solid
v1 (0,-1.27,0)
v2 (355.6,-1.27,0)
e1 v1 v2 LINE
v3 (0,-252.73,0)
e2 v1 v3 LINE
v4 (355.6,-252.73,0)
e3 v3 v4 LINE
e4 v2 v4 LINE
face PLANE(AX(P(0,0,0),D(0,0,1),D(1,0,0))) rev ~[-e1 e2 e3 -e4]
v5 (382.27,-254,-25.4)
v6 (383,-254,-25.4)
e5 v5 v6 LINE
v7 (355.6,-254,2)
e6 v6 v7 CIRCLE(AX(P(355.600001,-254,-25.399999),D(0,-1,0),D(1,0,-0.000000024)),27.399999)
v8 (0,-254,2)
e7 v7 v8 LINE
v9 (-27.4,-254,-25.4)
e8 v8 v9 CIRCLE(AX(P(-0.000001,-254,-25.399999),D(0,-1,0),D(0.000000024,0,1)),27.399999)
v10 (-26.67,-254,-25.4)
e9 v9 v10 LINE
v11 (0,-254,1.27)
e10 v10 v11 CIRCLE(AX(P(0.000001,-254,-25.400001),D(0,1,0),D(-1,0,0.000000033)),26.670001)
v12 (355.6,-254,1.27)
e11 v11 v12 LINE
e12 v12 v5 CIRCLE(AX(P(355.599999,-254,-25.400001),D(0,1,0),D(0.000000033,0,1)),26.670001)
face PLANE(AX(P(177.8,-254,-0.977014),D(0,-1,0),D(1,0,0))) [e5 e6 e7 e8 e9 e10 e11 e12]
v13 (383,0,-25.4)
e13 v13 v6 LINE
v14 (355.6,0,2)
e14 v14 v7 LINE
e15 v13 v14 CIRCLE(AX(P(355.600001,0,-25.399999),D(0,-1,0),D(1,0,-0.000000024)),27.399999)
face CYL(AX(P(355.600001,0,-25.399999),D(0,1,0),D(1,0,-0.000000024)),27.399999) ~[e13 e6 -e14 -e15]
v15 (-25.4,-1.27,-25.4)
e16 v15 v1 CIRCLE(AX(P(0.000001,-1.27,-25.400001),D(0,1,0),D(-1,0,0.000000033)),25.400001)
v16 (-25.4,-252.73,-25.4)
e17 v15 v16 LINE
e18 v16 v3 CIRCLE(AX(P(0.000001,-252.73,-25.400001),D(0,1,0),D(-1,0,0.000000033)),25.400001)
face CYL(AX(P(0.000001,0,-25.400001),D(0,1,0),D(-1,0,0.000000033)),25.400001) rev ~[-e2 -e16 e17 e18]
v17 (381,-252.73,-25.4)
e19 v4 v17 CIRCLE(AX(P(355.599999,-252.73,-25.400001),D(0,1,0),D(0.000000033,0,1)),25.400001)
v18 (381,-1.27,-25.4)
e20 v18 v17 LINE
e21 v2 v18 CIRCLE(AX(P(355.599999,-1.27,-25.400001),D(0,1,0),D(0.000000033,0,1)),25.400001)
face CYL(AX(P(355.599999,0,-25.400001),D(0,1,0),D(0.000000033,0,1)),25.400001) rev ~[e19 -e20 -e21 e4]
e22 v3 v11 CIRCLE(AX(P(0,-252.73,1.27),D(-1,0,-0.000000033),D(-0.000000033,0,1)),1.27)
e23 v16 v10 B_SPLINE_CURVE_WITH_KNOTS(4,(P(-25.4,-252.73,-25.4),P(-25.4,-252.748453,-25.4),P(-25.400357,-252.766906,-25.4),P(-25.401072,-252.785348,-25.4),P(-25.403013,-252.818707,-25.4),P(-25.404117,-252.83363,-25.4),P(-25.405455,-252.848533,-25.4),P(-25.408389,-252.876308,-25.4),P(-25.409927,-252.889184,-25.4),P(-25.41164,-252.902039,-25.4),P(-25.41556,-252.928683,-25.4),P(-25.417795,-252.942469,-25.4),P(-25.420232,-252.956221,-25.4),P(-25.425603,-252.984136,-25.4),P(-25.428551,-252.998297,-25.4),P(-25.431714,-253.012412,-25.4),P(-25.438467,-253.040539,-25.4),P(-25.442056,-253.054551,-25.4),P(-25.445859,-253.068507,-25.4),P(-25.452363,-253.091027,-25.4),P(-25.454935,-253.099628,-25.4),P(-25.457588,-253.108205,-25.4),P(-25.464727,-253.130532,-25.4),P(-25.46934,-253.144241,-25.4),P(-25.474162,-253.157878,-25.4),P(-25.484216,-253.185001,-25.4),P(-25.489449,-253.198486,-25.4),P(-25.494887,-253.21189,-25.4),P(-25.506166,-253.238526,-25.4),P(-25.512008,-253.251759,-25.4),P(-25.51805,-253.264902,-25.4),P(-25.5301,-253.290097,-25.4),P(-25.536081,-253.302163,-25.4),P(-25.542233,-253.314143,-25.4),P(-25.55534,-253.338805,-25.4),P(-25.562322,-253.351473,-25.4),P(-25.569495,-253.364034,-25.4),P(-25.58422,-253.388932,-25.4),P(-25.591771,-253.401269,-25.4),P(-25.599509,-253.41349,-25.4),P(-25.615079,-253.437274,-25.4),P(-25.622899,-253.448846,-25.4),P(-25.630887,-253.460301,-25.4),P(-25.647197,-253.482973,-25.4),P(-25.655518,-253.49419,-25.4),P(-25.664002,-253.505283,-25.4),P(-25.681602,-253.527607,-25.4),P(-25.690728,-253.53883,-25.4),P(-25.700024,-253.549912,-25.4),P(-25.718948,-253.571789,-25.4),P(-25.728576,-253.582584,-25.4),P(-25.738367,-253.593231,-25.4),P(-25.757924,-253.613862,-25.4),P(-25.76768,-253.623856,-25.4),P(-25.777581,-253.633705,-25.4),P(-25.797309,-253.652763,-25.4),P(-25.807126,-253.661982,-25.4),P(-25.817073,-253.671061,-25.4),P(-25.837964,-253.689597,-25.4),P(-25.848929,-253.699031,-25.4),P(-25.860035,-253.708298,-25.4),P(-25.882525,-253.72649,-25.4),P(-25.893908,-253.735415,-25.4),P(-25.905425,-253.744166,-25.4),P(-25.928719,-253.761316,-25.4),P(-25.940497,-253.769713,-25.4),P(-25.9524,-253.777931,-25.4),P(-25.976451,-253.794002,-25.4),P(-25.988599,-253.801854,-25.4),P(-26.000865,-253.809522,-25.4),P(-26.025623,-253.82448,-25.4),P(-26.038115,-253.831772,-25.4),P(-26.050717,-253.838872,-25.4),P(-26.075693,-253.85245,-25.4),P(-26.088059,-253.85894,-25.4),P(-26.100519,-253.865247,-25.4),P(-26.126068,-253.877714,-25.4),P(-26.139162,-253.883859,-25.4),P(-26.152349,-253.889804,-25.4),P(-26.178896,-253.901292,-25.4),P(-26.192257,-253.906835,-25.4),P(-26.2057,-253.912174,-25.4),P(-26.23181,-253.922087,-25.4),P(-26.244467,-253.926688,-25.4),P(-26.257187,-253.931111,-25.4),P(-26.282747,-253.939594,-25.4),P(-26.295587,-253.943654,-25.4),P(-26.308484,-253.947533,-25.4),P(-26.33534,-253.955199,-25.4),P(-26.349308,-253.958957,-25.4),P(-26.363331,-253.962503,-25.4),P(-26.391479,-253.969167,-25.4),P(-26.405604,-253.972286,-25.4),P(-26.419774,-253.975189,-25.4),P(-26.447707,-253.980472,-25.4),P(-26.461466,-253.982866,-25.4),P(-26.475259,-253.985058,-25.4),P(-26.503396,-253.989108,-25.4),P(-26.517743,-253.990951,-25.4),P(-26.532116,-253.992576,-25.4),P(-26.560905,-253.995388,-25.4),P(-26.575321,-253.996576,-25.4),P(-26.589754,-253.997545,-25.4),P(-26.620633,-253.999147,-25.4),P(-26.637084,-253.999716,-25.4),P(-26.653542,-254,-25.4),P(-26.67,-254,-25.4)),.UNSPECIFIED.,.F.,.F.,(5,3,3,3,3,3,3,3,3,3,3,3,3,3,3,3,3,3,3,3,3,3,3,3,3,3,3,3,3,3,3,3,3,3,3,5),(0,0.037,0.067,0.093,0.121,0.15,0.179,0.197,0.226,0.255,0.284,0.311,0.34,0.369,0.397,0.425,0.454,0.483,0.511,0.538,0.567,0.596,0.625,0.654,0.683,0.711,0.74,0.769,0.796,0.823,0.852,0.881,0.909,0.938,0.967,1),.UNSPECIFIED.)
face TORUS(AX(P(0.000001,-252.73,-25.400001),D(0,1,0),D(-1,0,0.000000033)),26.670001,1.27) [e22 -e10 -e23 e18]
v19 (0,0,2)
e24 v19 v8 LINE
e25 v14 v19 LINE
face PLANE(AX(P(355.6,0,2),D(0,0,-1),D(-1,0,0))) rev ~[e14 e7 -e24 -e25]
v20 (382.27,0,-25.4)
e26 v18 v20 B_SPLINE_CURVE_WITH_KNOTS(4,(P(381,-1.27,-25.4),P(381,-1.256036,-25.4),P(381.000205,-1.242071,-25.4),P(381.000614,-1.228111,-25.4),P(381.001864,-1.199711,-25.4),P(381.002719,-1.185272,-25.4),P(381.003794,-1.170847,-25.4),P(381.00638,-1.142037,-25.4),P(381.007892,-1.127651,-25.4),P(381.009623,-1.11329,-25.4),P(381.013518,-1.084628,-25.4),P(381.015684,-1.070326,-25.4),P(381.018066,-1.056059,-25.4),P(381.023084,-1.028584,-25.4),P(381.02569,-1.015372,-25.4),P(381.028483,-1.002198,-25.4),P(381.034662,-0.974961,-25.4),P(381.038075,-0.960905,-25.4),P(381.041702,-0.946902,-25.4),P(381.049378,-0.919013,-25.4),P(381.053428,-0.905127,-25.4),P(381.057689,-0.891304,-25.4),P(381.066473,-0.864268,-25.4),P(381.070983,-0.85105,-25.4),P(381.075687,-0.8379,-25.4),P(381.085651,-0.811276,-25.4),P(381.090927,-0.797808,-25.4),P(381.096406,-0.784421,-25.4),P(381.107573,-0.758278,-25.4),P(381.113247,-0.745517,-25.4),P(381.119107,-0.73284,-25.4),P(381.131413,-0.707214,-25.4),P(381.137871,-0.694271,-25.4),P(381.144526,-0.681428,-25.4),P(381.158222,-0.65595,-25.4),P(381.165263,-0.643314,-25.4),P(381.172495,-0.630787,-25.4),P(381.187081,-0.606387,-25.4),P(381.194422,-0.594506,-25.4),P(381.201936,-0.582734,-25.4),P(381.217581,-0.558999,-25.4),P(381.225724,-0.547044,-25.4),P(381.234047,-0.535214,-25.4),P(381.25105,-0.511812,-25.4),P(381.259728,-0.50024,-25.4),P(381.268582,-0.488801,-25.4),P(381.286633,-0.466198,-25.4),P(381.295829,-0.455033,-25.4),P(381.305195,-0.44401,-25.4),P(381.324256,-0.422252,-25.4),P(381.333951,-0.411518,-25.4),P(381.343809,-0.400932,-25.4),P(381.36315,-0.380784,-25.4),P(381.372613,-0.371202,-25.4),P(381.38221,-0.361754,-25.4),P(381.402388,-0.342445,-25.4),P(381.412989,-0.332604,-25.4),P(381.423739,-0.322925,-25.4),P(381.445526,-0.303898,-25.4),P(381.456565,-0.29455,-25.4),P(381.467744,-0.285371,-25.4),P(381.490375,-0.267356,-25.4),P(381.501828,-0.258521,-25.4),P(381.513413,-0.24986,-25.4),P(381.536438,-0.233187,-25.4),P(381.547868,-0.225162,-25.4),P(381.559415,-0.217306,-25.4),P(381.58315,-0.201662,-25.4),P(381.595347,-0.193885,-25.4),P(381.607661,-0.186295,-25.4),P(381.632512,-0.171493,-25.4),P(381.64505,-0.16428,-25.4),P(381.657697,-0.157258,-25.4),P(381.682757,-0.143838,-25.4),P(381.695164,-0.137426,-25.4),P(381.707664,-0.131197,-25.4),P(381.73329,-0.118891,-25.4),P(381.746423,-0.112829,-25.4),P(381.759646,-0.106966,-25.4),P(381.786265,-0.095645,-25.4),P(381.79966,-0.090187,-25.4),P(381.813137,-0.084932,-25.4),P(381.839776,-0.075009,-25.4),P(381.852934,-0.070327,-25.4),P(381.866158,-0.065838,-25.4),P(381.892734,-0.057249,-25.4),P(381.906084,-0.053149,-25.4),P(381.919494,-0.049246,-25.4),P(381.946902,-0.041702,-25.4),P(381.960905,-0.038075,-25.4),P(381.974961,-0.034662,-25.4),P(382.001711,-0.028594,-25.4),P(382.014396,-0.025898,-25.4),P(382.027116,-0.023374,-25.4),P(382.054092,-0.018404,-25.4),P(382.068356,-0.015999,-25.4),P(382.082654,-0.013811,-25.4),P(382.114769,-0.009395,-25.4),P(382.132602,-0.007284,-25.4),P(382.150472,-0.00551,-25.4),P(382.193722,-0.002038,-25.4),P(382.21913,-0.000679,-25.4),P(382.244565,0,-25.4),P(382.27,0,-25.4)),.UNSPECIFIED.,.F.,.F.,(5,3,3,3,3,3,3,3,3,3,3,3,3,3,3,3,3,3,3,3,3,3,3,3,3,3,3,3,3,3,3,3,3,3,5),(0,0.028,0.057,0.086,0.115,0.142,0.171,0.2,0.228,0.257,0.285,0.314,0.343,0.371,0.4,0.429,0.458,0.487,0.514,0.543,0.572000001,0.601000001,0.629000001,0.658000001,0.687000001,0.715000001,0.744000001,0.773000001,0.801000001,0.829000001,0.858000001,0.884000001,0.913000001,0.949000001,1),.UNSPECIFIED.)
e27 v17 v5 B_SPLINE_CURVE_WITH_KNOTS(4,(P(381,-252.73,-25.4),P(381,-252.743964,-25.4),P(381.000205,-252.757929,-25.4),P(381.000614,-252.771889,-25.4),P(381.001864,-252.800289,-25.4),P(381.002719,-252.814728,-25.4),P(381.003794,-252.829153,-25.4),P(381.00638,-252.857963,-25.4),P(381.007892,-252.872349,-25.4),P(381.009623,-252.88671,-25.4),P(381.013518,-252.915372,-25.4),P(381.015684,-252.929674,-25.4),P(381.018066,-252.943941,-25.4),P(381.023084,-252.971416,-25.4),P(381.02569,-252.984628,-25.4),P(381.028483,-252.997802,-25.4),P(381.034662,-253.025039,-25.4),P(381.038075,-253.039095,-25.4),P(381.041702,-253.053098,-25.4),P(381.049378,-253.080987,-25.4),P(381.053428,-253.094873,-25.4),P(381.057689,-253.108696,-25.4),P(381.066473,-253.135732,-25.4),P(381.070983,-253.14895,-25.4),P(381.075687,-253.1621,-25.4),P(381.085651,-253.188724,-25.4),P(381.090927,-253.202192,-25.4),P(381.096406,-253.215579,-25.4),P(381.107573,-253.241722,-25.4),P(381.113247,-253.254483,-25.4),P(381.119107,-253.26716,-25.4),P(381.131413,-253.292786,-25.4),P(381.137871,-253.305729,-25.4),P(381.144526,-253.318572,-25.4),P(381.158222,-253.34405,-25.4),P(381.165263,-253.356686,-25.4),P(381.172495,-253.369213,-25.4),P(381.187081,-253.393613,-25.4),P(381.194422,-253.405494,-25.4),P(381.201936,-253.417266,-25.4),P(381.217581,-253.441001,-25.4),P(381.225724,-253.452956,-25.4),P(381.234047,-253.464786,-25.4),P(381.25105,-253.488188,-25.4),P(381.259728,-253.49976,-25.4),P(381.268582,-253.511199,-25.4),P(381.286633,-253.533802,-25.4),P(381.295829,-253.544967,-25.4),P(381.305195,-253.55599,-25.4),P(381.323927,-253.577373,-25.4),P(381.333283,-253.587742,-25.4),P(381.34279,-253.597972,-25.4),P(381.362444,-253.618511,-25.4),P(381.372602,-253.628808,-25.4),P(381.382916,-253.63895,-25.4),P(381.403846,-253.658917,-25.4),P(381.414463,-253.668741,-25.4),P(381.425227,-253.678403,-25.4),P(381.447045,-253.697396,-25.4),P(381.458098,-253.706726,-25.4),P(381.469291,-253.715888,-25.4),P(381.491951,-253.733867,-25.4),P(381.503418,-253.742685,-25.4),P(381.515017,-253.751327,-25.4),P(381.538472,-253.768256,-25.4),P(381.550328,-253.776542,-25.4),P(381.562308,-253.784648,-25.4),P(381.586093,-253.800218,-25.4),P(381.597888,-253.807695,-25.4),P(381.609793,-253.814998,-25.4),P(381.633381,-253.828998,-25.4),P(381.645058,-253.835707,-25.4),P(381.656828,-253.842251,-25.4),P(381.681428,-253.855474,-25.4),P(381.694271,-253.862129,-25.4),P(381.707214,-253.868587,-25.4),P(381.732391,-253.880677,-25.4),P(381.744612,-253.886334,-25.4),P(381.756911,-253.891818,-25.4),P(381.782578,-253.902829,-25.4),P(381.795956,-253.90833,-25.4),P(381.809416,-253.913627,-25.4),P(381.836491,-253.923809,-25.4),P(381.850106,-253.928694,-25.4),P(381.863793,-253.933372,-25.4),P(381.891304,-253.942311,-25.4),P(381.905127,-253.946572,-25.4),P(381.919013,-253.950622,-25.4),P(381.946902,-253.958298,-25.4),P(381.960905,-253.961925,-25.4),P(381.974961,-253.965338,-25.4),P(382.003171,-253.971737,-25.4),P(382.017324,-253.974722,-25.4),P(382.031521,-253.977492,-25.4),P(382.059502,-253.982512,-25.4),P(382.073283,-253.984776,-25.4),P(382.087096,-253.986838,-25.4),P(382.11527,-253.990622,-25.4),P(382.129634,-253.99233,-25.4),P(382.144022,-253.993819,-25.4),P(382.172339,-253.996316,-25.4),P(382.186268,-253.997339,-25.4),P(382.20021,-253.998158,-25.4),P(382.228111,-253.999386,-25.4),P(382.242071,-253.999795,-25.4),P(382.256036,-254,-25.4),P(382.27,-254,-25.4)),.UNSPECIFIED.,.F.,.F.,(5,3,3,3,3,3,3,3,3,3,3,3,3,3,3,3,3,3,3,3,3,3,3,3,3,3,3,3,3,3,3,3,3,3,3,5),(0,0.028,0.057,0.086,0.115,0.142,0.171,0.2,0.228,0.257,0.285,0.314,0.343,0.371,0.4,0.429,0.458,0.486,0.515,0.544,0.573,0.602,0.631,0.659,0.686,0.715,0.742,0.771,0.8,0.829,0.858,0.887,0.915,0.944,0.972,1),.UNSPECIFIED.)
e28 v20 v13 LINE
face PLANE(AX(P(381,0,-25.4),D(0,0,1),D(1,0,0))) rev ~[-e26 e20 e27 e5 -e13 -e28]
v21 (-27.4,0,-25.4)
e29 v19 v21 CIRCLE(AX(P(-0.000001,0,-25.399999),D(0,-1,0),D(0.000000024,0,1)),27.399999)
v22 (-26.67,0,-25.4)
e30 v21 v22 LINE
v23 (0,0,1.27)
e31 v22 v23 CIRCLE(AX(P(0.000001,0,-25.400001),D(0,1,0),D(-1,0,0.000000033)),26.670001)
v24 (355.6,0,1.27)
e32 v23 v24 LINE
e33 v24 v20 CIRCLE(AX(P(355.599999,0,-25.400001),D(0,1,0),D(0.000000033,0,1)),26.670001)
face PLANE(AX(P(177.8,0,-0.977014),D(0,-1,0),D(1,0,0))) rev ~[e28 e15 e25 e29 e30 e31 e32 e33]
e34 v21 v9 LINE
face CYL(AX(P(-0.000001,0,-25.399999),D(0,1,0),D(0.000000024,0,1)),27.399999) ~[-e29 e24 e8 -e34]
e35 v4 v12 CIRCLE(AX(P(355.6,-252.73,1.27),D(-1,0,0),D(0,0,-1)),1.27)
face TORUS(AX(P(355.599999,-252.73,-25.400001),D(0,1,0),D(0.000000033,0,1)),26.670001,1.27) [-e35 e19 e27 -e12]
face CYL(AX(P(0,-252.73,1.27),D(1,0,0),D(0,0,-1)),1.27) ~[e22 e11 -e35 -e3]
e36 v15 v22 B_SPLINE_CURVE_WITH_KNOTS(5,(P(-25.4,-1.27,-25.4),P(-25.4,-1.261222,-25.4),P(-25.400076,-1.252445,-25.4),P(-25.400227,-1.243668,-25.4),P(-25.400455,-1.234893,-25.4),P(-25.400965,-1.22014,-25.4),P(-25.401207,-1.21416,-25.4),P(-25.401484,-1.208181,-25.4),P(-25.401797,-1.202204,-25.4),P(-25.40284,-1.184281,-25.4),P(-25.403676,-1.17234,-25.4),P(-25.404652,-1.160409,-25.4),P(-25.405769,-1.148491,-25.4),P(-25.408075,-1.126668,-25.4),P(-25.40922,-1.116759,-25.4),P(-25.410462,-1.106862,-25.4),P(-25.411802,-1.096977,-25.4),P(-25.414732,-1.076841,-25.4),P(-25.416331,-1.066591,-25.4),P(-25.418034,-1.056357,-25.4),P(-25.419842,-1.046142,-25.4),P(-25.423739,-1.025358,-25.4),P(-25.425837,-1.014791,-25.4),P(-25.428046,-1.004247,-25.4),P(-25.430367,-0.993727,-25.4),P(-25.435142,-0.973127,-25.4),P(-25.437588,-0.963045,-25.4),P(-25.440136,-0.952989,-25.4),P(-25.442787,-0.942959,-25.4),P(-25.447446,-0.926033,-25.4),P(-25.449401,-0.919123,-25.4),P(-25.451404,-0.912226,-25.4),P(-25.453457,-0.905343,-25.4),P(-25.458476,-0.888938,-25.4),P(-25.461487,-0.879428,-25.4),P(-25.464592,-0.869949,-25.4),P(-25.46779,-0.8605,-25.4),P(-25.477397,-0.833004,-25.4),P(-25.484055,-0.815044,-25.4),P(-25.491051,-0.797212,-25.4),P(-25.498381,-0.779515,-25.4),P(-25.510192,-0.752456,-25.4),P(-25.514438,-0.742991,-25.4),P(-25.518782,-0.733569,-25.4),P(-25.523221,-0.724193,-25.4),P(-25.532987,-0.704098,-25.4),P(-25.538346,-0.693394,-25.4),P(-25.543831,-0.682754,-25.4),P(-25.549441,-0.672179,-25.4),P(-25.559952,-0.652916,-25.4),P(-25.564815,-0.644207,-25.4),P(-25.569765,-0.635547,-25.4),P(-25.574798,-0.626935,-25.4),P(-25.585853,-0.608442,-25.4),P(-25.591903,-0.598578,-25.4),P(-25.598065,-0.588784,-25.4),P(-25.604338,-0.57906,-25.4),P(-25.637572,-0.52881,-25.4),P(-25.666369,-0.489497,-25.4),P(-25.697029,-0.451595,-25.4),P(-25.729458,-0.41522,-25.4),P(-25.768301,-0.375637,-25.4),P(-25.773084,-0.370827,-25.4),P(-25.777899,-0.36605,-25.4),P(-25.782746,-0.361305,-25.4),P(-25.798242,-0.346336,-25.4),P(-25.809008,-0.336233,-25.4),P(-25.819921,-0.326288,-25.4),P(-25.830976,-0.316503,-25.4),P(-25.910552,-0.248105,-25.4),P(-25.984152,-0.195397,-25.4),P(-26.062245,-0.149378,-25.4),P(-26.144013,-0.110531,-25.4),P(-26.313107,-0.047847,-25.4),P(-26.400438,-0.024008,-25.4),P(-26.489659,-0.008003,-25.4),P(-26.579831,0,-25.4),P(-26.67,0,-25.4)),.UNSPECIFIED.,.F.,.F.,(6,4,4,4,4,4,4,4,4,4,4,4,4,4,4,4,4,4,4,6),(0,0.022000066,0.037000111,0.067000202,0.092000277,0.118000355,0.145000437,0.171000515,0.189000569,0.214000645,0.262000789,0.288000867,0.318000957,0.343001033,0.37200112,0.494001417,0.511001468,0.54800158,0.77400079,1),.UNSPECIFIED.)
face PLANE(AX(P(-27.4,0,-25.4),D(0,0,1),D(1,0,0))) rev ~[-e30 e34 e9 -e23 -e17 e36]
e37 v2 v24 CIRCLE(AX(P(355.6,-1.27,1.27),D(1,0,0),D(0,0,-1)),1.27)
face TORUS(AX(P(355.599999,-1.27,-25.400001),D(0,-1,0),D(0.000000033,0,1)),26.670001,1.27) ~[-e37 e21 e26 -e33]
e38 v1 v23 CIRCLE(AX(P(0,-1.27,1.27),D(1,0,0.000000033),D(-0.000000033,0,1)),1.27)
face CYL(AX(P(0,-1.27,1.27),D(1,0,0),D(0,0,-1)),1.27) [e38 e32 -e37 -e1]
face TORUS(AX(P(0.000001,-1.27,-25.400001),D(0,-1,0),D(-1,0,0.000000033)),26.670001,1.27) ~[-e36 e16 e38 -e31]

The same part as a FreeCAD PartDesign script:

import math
import FreeCAD as App
import Part
import Sketcher
from FreeCAD import Vector
Q = App.Units.Quantity


def edges_at(feature, points):
    """Names of the edges that pass closest to the given points."""
    edges = feature.Shape.Edges
    near = lambda p: min(range(len(edges)), key=lambda i: edges[i].distToShape(Part.Vertex(*p))[0])
    return sorted({f"Edge{near(p) + 1}" for p in points})

doc = App.newDocument("Part")
body = doc.addObject("PartDesign::Body", "Body")

sketch1 = doc.addObject("Sketcher::SketchObject", "Sketch")
body.addObject(sketch1)
sketch1.AttachmentSupport = (doc.XZ_Plane, [""])
sketch1.MapMode = "FlatFace"
sketch1.addGeometry([
    Part.ArcOfCircle(Part.Circle(Vector(0.000001, -25.400001, 0), Vector(0, 0, 1), 25.400001), math.radians(90.000002), math.radians(179.999998)),
    Part.LineSegment(Vector(0, 0, 0), Vector(355.6, 0, 0)),
    Part.ArcOfCircle(Part.Circle(Vector(355.599999, -25.400001, 0), Vector(0, 0, 1), 25.400001), math.radians(0.000002), math.radians(89.999998)),
    Part.LineSegment(Vector(381, -25.4, 0), Vector(383, -25.4, 0)),
    Part.ArcOfCircle(Part.Circle(Vector(355.600001, -25.399999, 0), Vector(0, 0, 1), 27.399999), math.radians(-0.000001), math.radians(90.000001)),
    Part.LineSegment(Vector(355.6, 2, 0), Vector(0, 2, 0)),
    Part.ArcOfCircle(Part.Circle(Vector(-0.000001, -25.399999, 0), Vector(0, 0, 1), 27.399999), math.radians(89.999999), math.radians(180.000001)),
    Part.LineSegment(Vector(-27.4, -25.4, 0), Vector(-25.4, -25.4, 0)),
], False)
sketch1.addConstraint([
    Sketcher.Constraint("Tangent", 0, 1, 1, 1),
    Sketcher.Constraint("Tangent", 1, 2, 2, 2),
    Sketcher.Constraint("Coincident", 2, 1, 3, 1),
    Sketcher.Constraint("Coincident", 3, 2, 4, 1),
    Sketcher.Constraint("Tangent", 4, 2, 5, 1),
    Sketcher.Constraint("Tangent", 5, 2, 6, 1),
    Sketcher.Constraint("Coincident", 6, 2, 7, 1),
    Sketcher.Constraint("Coincident", 7, 2, 0, 2),
    Sketcher.Constraint("Horizontal", 1),
    Sketcher.Constraint("Horizontal", 3),
    Sketcher.Constraint("Horizontal", 5),
    Sketcher.Constraint("Horizontal", 7),
    Sketcher.Constraint("Coincident", 0, 1, -1, 1),
    Sketcher.Constraint("Coincident", 4, 3, 2, 3),
    Sketcher.Constraint("Coincident", 6, 3, 0, 3),
    Sketcher.Constraint("Equal", 0, 2),
    Sketcher.Constraint("Horizontal", 6, 3, 2, 1),
    Sketcher.Constraint("Horizontal", 3, 2, 6, 2),
    Sketcher.Constraint("Radius", 0, Q("1 in")),
    Sketcher.Constraint("DistanceX", 1, 1, 1, 2, Q("14 in")),
    Sketcher.Constraint("Radius", 4, 27.399999),
])
pad1 = doc.addObject("PartDesign::Pad", "Pad")
body.addObject(pad1)
pad1.Profile = sketch1
pad1.Length = Q("10 in")
doc.recompute()

fillet = doc.addObject("PartDesign::Fillet", "Fillet")
body.addObject(fillet)
fillet.Base = (pad1, edges_at(pad1, [(177.8, -254, 0), (177.8, 0, 0)]))
fillet.Radius = Q("0.05 in")

doc.recompute()
